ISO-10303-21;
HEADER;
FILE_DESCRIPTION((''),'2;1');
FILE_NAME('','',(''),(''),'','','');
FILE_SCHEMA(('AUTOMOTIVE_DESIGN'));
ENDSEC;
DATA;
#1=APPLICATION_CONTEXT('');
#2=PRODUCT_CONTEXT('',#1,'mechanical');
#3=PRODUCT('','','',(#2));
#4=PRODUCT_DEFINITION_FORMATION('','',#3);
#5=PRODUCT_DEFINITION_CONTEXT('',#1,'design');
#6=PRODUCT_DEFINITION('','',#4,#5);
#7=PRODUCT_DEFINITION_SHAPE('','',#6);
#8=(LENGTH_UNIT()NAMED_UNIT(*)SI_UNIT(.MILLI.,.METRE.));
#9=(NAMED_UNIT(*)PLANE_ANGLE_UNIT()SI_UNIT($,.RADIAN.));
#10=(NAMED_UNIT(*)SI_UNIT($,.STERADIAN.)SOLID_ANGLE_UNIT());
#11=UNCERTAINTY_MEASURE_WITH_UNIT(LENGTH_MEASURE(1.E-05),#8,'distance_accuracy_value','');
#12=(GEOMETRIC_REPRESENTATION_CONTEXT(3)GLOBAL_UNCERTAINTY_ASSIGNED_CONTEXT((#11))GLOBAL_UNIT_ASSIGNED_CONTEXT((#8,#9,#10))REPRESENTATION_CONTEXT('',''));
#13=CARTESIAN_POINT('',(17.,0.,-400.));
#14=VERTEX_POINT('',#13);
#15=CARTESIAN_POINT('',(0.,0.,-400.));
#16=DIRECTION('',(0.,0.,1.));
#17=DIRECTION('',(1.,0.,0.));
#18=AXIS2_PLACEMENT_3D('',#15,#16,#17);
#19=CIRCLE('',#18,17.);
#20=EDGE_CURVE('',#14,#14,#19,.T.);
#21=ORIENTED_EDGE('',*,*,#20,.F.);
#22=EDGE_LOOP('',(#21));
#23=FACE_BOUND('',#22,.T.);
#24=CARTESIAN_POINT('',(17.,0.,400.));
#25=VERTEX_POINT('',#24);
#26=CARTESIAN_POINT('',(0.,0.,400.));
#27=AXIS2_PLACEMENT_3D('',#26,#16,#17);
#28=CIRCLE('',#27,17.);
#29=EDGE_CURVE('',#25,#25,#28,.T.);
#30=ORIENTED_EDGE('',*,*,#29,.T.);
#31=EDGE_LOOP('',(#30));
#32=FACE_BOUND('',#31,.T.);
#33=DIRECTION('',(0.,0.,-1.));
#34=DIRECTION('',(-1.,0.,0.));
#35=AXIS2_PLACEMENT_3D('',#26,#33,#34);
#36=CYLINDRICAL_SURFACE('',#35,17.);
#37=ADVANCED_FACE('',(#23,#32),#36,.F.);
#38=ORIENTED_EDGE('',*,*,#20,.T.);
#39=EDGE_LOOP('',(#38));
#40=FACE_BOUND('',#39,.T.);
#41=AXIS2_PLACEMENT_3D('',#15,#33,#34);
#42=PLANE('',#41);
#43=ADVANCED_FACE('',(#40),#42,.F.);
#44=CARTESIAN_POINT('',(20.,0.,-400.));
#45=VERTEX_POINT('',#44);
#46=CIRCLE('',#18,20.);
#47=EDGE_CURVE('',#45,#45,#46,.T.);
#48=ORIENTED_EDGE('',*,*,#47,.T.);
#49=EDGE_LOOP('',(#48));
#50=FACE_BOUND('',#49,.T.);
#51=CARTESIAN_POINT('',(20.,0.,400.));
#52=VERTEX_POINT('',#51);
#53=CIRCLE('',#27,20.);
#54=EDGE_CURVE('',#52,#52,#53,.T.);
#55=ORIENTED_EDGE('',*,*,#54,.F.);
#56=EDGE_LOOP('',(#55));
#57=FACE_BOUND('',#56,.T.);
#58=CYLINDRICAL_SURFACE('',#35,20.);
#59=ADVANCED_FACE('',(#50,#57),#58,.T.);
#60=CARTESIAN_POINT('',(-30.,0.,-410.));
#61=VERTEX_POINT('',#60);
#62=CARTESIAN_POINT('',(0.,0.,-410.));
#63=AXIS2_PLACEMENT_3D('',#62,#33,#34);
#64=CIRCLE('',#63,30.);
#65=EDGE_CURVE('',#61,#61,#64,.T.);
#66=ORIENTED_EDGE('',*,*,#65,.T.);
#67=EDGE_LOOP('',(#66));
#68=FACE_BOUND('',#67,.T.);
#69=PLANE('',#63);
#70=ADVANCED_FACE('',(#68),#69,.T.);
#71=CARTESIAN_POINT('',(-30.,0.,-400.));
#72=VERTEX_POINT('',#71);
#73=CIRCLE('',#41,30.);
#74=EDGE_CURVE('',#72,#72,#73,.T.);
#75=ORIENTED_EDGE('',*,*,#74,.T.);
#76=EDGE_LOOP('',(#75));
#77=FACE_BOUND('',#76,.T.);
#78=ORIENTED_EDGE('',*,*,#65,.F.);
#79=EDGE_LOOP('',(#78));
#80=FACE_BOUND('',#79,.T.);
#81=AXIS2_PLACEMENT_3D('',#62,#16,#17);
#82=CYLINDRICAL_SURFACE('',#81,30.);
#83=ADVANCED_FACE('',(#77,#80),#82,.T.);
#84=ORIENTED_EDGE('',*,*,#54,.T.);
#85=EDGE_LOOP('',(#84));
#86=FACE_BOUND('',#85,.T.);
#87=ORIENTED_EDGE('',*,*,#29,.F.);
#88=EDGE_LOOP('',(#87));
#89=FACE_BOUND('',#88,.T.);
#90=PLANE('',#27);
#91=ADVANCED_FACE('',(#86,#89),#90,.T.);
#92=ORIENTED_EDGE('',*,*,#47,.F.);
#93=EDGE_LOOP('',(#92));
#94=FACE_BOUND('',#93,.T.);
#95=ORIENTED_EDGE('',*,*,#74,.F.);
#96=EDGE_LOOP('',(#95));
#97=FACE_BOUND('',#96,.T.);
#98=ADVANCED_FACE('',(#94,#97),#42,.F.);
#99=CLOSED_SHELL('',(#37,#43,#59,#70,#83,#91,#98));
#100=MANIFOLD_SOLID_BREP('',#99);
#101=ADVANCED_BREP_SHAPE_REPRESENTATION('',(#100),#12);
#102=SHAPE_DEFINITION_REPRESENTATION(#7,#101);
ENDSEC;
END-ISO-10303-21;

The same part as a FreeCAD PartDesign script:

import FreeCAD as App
import Part
import Sketcher
from FreeCAD import Vector

doc = App.newDocument("Part")
body = doc.addObject("PartDesign::Body", "Body")

# Sketch on XY plane
sketch1 = body.newObject("Sketcher::SketchObject", "Sketch")
sketch1.AttachmentSupport = (doc.getObject("XY_Plane"), [""])
sketch1.MapMode = "FlatFace"
sketch1.addGeometry([
    Part.Circle(Vector(0, 0, 0), Vector(0, 0, 1), 20),
    Part.Circle(Vector(0, 0, 0), Vector(0, 0, 1), 17),
], False)
sketch1.addConstraint([
    Sketcher.Constraint("Coincident", 0, 3, -1, 1),
    Sketcher.Constraint("Coincident", 1, 3, -1, 1),
    Sketcher.Constraint("Diameter", 0, 40.0),
    Sketcher.Constraint("Diameter", 1, 34.0),
])
pad1 = body.newObject("PartDesign::Pad", "Pad")
pad1.Profile = sketch1
pad1.Type = "TwoLengths"
pad1.Length = 400
pad1.Length2 = 400

# Sketch on XY plane
sketch2 = body.newObject("Sketcher::SketchObject", "Sketch001")
sketch2.AttachmentSupport = (doc.getObject("XY_Plane"), [""])
sketch2.MapMode = "FlatFace"
sketch2.AttachmentOffset = App.Placement(Vector(0, 0, -400), App.Rotation())
sketch2.addGeometry(Part.Circle(Vector(0, 0, 0), Vector(0, 0, 1), 30), False)
sketch2.addConstraint([
    Sketcher.Constraint("Coincident", 0, 3, -1, 1),
    Sketcher.Constraint("Diameter", 0, 60.0),
])
pad2 = body.newObject("PartDesign::Pad", "Pad001")
pad2.Profile = sketch2
pad2.Length = 10
pad2.Reversed = True

doc.recompute()
